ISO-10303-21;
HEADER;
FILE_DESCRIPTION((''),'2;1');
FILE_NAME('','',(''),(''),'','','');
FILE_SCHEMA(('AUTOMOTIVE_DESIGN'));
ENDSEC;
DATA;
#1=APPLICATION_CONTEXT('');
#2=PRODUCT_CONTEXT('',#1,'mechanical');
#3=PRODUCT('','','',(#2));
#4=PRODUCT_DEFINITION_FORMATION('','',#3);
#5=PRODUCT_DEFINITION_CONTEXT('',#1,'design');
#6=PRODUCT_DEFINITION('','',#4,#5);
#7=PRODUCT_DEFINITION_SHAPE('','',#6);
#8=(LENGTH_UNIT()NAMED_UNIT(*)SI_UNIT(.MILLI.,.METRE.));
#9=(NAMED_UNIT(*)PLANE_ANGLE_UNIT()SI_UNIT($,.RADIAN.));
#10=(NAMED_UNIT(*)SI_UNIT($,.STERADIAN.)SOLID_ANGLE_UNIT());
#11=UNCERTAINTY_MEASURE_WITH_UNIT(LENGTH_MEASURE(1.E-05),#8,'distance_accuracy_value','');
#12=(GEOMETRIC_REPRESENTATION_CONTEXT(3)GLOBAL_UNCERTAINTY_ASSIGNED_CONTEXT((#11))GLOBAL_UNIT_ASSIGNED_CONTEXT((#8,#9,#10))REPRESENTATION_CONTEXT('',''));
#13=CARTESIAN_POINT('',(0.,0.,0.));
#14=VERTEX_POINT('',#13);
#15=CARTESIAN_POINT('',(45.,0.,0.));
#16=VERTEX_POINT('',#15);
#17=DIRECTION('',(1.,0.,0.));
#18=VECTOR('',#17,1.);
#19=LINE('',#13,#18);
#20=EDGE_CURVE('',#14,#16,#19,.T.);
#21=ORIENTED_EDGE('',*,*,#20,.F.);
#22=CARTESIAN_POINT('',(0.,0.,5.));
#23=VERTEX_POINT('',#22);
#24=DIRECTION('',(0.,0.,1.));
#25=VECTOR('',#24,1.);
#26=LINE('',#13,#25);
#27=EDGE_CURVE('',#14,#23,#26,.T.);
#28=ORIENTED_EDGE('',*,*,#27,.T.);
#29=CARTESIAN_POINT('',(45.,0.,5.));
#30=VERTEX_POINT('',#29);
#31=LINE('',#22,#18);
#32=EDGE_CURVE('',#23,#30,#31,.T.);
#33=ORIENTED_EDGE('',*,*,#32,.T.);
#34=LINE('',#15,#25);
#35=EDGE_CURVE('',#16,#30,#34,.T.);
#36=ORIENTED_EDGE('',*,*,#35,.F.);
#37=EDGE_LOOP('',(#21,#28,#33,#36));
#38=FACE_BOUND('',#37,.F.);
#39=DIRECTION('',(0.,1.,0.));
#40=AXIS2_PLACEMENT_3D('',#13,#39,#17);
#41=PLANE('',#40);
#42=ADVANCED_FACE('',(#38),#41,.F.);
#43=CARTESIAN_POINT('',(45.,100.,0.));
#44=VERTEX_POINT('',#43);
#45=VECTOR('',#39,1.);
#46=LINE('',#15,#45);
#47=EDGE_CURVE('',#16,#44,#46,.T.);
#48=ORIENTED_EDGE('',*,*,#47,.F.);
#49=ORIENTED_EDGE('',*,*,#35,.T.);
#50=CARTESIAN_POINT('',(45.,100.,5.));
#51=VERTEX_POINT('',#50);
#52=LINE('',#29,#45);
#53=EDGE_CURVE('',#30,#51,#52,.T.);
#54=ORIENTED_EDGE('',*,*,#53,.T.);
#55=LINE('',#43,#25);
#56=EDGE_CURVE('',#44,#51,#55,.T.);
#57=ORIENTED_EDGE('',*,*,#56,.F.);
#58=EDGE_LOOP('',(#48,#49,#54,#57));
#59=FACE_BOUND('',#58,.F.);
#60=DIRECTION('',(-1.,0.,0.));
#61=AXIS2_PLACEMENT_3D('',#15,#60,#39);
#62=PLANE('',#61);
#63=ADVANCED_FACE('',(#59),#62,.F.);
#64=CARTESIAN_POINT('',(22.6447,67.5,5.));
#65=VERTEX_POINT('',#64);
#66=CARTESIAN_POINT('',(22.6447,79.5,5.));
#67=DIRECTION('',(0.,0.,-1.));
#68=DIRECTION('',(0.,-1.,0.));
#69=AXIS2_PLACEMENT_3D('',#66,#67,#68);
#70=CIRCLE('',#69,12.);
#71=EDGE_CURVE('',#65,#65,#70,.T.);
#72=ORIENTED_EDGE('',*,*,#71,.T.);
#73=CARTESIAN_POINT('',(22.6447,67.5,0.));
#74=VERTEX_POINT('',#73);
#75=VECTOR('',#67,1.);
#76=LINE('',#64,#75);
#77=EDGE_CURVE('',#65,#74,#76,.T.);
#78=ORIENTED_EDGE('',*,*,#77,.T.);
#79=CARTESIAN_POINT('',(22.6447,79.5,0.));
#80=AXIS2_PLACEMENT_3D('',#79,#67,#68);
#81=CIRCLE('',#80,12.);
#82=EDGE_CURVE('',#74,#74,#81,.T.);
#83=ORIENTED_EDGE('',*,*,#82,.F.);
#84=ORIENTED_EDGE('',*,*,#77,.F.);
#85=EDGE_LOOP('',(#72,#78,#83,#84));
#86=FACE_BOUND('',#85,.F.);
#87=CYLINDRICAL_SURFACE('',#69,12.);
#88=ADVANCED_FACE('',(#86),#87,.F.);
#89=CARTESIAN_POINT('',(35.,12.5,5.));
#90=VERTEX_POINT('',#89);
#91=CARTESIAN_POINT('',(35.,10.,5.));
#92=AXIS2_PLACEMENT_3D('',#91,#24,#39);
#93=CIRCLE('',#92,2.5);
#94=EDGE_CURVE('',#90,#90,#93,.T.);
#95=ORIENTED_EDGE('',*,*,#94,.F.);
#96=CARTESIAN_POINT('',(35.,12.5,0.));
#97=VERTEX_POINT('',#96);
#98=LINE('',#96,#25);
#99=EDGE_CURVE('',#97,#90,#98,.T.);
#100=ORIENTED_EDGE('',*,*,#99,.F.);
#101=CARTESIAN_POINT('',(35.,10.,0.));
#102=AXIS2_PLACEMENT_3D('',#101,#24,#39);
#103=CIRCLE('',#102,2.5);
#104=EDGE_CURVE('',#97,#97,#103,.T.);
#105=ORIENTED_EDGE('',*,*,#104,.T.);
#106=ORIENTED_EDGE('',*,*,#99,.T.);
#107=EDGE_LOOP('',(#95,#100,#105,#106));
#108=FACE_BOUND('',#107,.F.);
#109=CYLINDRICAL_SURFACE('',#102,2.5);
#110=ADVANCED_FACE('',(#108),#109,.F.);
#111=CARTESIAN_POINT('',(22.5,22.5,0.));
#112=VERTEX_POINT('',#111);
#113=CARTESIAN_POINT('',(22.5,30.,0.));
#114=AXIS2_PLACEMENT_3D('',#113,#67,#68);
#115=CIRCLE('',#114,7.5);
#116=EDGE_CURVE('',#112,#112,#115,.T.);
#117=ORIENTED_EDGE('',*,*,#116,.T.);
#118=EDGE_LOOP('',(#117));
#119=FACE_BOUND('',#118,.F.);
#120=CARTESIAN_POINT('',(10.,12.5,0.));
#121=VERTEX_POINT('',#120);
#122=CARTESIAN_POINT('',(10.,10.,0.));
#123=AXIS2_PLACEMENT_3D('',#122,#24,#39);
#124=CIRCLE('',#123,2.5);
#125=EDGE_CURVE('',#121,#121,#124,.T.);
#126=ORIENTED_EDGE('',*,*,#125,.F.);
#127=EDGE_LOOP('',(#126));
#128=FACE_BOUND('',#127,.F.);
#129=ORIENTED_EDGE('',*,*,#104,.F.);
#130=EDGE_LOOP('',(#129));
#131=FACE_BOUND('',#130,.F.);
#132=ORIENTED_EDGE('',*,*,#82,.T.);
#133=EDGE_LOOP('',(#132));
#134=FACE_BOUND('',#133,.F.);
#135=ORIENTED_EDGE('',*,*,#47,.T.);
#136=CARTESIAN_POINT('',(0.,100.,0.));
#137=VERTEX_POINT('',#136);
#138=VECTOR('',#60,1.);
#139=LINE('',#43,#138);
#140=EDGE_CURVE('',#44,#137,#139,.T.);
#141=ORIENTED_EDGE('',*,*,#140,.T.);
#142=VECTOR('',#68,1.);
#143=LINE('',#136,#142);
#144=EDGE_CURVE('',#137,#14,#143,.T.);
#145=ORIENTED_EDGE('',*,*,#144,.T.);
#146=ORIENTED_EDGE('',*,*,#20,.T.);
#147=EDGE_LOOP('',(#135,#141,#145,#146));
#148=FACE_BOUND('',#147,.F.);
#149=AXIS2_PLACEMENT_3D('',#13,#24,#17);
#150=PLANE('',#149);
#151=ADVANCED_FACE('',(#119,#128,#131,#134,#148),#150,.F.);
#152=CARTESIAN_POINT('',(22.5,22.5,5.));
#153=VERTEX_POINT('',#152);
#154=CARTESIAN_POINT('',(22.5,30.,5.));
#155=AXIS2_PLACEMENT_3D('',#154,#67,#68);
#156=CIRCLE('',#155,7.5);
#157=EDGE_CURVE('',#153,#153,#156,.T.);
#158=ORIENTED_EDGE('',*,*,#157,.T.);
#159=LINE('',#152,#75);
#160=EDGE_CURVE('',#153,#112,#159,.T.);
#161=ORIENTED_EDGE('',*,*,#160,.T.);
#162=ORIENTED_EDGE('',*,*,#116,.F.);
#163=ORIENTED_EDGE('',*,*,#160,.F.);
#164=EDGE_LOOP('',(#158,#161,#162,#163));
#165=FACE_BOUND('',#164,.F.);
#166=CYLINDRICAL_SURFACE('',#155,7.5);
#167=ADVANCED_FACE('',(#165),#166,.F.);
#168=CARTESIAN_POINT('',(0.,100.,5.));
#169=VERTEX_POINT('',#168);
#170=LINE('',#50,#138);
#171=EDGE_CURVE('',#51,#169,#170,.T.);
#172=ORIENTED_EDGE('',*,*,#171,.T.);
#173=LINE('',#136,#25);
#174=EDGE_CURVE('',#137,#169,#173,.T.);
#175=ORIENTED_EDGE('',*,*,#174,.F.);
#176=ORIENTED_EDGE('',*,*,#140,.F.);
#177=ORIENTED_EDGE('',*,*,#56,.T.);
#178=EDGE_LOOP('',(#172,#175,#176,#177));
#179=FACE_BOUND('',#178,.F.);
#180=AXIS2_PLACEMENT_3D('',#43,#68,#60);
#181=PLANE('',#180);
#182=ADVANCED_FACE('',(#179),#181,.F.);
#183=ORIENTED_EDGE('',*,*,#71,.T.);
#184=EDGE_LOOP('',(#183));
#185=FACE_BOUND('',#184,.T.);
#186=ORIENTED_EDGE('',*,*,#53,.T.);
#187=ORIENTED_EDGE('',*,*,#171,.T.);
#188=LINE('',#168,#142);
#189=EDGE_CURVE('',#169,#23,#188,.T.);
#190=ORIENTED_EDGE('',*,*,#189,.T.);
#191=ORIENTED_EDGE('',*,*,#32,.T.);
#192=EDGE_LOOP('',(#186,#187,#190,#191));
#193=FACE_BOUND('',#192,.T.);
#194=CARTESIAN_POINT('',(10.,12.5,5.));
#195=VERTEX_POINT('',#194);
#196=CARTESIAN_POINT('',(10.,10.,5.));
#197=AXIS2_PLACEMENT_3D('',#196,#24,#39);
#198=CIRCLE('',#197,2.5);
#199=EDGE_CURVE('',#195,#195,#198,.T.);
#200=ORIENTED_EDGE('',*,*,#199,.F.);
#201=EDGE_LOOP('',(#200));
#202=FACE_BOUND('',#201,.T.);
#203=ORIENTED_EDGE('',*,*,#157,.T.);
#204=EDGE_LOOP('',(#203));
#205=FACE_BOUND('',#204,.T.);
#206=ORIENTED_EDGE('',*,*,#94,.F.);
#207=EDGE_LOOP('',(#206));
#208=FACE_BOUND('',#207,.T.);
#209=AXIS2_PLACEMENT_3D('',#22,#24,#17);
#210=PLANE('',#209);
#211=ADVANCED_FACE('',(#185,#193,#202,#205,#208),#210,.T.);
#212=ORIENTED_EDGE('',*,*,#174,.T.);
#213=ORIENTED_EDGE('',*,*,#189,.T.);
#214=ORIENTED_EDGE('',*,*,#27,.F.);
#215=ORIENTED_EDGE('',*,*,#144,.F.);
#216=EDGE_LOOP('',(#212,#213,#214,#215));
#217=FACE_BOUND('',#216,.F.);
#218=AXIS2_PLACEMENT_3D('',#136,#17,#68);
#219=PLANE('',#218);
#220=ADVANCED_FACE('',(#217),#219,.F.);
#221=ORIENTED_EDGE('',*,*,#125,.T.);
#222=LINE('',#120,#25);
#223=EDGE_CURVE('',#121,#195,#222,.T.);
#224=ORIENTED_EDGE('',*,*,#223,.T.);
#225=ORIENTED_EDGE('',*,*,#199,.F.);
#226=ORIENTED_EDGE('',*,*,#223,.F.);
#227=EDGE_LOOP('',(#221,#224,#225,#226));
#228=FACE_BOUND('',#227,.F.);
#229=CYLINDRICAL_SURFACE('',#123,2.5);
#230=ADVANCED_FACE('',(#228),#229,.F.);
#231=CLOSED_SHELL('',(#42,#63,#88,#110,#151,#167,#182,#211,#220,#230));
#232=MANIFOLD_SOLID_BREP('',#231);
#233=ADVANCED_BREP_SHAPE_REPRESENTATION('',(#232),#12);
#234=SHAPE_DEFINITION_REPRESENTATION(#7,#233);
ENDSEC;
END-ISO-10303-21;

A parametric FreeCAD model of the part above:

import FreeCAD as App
import Part
import Sketcher

V = App.Vector
Q = App.Units.Quantity


def add_polygon(sketch, points):
    """Adds a closed chain of lines whose ends are joined by coincident constraints."""
    first, n = sketch.GeometryCount, len(points)
    for a, b in zip(points, points[1:] + points[:1]):
        sketch.addGeometry(Part.LineSegment(App.Vector(*a, 0), App.Vector(*b, 0)), False)
    for i in range(n):
        sketch.addConstraint(Sketcher.Constraint("Coincident", first + i, 2, first + (i + 1) % n, 1))

doc = App.newDocument("Part")
body = doc.addObject("PartDesign::Body", "Body")

# Sketch on XY plane
sketch1 = body.newObject("Sketcher::SketchObject", "Sketch")
sketch1.AttachmentSupport = (doc.getObject("XY_Plane"), [""])
sketch1.MapMode = "FlatFace"
add_polygon(sketch1, [(0, 100), (0, 0), (45, 0), (45, 100)])  # lines 0-3
sketch1.addConstraint([
    Sketcher.Constraint("Vertical", 0),
    Sketcher.Constraint("Horizontal", 1),
    Sketcher.Constraint("Vertical", 2),
    Sketcher.Constraint("Horizontal", 3),
    Sketcher.Constraint("Coincident", 0, 2, -1, 1),
    Sketcher.Constraint("DistanceX", 1, 1, 1, 2, Q("45 mm")),
    Sketcher.Constraint("DistanceY", 0, 2, 0, 1, Q("100 mm")),
])
pad1 = body.newObject("PartDesign::Pad", "Pad")
pad1.Profile = sketch1
pad1.Length = 5

# Sketch on XY plane
sketch2 = body.newObject("Sketcher::SketchObject", "Sketch001")
sketch2.AttachmentSupport = (doc.getObject("XY_Plane"), [""])
sketch2.MapMode = "FlatFace"
sketch2.AttachmentOffset = App.Placement(V(0, 0, 5), App.Rotation())
sketch2.addGeometry(Part.Circle(V(23, 80, 0), V(0, 0, 1), 12), False)
sketch2.addConstraint([
    Sketcher.Constraint("Diameter", 0, Q("24 mm")),
    Sketcher.Constraint("DistanceY", -1, 1, 0, 3, Q("79.5 mm")),
    Sketcher.Constraint("DistanceX", -1, 1, 0, 3, Q("22.6447 mm")),
])
doc.recompute()
hole = body.newObject("PartDesign::Hole", "Hole")
hole.Profile = sketch2
hole.ThreadType = "None"
hole.Diameter = 24
hole.DepthType = "ThroughAll"

# Sketch on XY plane
sketch3 = body.newObject("Sketcher::SketchObject", "Sketch002")
sketch3.AttachmentSupport = (doc.getObject("XY_Plane"), [""])
sketch3.MapMode = "FlatFace"
sketch3.addGeometry([
    Part.Circle(V(10, 10, 0), V(0, 0, 1), 2.5),
    Part.Circle(V(35, 10, 0), V(0, 0, 1), 2.5),
], False)
sketch3.addConstraint([
    Sketcher.Constraint("Equal", 0, 1),
    Sketcher.Constraint("Horizontal", 0, 3, 1, 3),
    Sketcher.Constraint("Diameter", 0, Q("5 mm")),
    Sketcher.Constraint("DistanceX", -1, 1, 0, 3, Q("10 mm")),
    Sketcher.Constraint("DistanceY", -1, 1, 0, 3, Q("10 mm")),
    Sketcher.Constraint("DistanceX", -1, 1, 1, 3, Q("35 mm")),
])
doc.recompute()
hole2 = body.newObject("PartDesign::Hole", "Hole001")
hole2.Profile = sketch3
hole2.ThreadType = "None"
hole2.Diameter = 5
hole2.DepthType = "ThroughAll"
hole2.Reversed = True

# Sketch on XY plane
sketch4 = body.newObject("Sketcher::SketchObject", "Sketch003")
sketch4.AttachmentSupport = (doc.getObject("XY_Plane"), [""])
sketch4.MapMode = "FlatFace"
sketch4.AttachmentOffset = App.Placement(V(0, 0, 5), App.Rotation())
sketch4.addGeometry(Part.Circle(V(22, 30, 0), V(0, 0, 1), 8), False)
sketch4.addConstraint([
    Sketcher.Constraint("Diameter", 0, Q("15 mm")),
    Sketcher.Constraint("DistanceY", -1, 1, 0, 3, Q("30 mm")),
    Sketcher.Constraint("DistanceX", -1, 1, 0, 3, Q("22.5 mm")),
])
doc.recompute()
hole3 = body.newObject("PartDesign::Hole", "Hole002")
hole3.Profile = sketch4
hole3.ThreadType = "None"
hole3.Diameter = 15
hole3.DepthType = "Dimension"
hole3.Depth = 8
hole3.DrillPoint = "Angled"
hole3.DrillPointAngle = 118

doc.recompute()
